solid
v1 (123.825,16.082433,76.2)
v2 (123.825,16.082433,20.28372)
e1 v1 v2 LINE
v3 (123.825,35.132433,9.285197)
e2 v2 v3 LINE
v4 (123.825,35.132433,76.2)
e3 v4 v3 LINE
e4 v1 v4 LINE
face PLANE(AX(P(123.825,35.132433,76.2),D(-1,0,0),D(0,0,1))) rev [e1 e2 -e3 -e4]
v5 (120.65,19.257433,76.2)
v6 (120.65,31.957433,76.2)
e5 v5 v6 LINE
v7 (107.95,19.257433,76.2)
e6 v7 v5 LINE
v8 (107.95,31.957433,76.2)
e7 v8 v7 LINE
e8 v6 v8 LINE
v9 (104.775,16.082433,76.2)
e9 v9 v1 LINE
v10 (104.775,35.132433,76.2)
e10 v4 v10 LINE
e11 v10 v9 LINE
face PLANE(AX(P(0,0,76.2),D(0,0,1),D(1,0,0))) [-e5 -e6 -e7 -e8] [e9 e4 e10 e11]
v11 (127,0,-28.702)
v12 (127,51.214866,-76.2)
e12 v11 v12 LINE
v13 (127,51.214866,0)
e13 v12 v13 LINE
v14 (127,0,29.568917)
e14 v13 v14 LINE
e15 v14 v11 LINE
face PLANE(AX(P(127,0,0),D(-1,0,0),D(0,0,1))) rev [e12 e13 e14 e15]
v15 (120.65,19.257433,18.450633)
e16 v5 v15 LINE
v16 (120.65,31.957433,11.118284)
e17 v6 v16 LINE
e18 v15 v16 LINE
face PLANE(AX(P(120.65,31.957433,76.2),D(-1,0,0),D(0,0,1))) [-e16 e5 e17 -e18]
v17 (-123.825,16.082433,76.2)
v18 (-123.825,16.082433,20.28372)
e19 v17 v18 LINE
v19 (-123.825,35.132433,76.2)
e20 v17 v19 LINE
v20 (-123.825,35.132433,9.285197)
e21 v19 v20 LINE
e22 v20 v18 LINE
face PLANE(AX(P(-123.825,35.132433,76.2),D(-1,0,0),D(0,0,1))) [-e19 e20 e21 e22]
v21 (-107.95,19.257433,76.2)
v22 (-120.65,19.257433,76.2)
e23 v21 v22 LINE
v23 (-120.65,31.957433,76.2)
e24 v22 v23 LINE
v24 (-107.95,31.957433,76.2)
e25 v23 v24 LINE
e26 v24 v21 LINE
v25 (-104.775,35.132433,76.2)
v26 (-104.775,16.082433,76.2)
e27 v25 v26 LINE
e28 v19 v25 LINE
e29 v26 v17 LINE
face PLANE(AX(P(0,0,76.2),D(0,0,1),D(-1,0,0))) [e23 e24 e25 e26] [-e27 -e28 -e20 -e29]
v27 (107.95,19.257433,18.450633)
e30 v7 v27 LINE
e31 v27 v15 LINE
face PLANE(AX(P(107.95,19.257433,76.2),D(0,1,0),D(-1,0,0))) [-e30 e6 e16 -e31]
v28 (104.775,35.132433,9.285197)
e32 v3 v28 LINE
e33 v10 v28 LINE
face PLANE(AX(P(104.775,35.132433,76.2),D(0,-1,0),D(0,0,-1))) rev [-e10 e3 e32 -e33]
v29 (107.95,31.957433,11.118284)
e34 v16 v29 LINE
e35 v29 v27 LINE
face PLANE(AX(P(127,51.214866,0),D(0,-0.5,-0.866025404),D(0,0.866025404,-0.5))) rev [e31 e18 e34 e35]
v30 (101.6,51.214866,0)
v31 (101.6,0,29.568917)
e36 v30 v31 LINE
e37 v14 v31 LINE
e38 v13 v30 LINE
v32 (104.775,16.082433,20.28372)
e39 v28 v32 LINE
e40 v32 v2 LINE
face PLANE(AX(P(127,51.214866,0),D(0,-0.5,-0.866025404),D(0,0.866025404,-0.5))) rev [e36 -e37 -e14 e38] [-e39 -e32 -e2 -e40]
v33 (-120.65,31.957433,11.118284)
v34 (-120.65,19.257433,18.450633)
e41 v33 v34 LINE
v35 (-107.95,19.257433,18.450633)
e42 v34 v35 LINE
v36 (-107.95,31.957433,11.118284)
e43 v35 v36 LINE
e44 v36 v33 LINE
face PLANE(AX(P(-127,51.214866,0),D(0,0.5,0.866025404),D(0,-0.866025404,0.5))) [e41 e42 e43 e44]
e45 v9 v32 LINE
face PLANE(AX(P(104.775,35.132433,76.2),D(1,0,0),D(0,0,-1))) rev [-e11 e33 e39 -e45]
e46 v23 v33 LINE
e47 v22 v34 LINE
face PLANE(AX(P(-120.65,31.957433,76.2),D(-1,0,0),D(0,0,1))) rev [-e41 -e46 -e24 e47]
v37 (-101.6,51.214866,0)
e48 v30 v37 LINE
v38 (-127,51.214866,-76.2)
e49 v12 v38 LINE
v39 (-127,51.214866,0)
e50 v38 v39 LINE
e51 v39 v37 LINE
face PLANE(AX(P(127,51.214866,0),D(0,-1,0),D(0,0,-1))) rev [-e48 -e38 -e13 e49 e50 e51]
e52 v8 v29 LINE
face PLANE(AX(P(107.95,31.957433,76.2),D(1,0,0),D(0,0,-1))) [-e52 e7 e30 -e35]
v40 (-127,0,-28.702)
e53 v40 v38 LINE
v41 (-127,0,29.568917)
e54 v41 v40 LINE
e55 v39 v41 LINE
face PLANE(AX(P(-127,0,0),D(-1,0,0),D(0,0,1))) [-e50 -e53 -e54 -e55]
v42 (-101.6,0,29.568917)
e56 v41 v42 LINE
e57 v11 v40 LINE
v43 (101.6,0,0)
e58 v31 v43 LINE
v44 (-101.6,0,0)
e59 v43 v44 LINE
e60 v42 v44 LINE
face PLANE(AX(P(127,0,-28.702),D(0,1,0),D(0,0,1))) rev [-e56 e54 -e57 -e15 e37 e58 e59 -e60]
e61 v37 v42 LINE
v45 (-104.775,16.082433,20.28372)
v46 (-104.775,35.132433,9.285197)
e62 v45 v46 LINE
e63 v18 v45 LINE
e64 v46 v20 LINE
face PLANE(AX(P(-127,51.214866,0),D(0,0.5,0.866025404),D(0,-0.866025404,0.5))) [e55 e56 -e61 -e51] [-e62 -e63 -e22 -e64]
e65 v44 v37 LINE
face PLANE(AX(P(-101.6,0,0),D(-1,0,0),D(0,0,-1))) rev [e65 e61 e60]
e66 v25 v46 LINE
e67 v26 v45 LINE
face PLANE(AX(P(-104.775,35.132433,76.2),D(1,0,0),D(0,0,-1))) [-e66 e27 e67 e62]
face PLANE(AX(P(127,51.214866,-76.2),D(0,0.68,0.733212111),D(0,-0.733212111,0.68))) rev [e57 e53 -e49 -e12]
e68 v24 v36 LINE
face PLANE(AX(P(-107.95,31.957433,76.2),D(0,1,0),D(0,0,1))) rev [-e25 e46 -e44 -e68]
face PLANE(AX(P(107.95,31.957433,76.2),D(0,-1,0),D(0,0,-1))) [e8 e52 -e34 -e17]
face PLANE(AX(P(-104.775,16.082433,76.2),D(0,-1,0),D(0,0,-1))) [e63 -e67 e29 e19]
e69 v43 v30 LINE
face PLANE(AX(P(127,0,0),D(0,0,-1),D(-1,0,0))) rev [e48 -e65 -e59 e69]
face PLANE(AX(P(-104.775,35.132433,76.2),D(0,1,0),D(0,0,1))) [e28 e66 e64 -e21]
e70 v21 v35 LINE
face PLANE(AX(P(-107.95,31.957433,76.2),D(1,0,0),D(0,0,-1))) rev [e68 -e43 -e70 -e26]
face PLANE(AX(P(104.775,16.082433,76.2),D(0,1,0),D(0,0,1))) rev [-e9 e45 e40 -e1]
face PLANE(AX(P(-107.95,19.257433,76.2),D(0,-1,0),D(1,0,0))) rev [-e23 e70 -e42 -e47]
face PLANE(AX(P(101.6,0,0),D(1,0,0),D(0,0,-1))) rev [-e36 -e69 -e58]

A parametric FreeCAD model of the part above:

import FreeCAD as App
import Part
import Sketcher
from FreeCAD import Vector
Q = App.Units.Quantity

doc = App.newDocument("Part")
body = doc.addObject("PartDesign::Body", "Body")

# Sketch on YZ plane
sketch1 = body.newObject("Sketcher::SketchObject", "Sketch")
sketch1.AttachmentSupport = (doc.getObject("YZ_Plane"), [""])
sketch1.MapMode = "FlatFace"
sketch1.addGeometry([
    Part.LineSegment(Vector(51.214866, 0, 0), Vector(0, 0, 0)),
    Part.LineSegment(Vector(0, 0, 0), Vector(0, -28.702, 0)),
    Part.LineSegment(Vector(0, -28.702, 0), Vector(51.214866, -76.2, 0)),
    Part.LineSegment(Vector(51.214866, -76.2, 0), Vector(51.214866, 0, 0)),
], False)
sketch1.addConstraint([
    Sketcher.Constraint("Coincident", 0, 2, 1, 1),
    Sketcher.Constraint("Coincident", 1, 2, 2, 1),
    Sketcher.Constraint("Coincident", 2, 2, 3, 1),
    Sketcher.Constraint("Coincident", 3, 2, 0, 1),
    Sketcher.Constraint("Horizontal", 0),
    Sketcher.Constraint("Vertical", 1),
    Sketcher.Constraint("Vertical", 3),
    Sketcher.Constraint("Coincident", 0, 2, -1, 1),
    Sketcher.Constraint("DistanceY", 3, 1, 3, 2, Q("3 in")),
    Sketcher.Constraint("DistanceY", 1, 2, 1, 1, Q("1.13 in")),
    Sketcher.Constraint("Distance", 2, Q("2.75 in")),
])
pad1 = body.newObject("PartDesign::Pad", "Pad")
pad1.Profile = sketch1
pad1.Length = Q("10 in")
pad1.Midplane = True

# Sketch on YZ plane
sketch2 = body.newObject("Sketcher::SketchObject", "Sketch001")
sketch2.AttachmentSupport = (doc.getObject("YZ_Plane"), [""])
sketch2.MapMode = "FlatFace"
sketch2.AttachmentOffset = App.Placement(Vector(0, 0, 4 * 25.4), App.Rotation())
sketch2.addGeometry([
    Part.LineSegment(Vector(51.214866, 0, 0), Vector(0, 29.568917, 0)),
    Part.LineSegment(Vector(0, 29.568917, 0), Vector(0, 0, 0)),
    Part.LineSegment(Vector(0, 0, 0), Vector(51.214866, 0, 0)),
], False)
sketch2.addConstraint([
    Sketcher.Constraint("Coincident", 0, 2, 1, 1),
    Sketcher.Constraint("Coincident", 1, 2, 2, 1),
    Sketcher.Constraint("Coincident", 2, 2, 0, 1),
    Sketcher.Constraint("Vertical", 1),
    Sketcher.Constraint("Horizontal", 2),
    Sketcher.Constraint("Coincident", 1, 2, -1, 1),
    Sketcher.Constraint("Angle", 0, Q("150 deg")),
    Sketcher.Constraint("DistanceX", 2, 1, 2, 2, Q("51.214866 mm")),
])
pad2 = body.newObject("PartDesign::Pad", "Pad001")
pad2.Profile = sketch2
pad2.Length = Q("1 in")
doc.recompute()

mirrored = body.newObject("PartDesign::Mirrored", "Mirrored")
mirrored.Originals = [pad2]
mirrored.MirrorPlane = (doc.getObject("YZ_Plane"), [""])
body.Tip = mirrored

# Sketch on XY plane
sketch3 = body.newObject("Sketcher::SketchObject", "Sketch002")
sketch3.AttachmentSupport = (doc.getObject("XY_Plane"), [""])
sketch3.MapMode = "FlatFace"
sketch3.addGeometry([
    Part.LineSegment(Vector(104.775, 35.132433, 0), Vector(104.775, 16.082433, 0)),  # 0
    Part.LineSegment(Vector(104.775, 16.082433, 0), Vector(123.825, 16.082433, 0)),  # 1
    Part.LineSegment(Vector(123.825, 16.082433, 0), Vector(123.825, 35.132433, 0)),  # 2
    Part.LineSegment(Vector(123.825, 35.132433, 0), Vector(104.775, 35.132433, 0)),  # 3
    Part.LineSegment(Vector(120.65, 19.257433, 0), Vector(107.95, 19.257433, 0)),  # 4
    Part.LineSegment(Vector(107.95, 19.257433, 0), Vector(107.95, 31.957433, 0)),  # 5
    Part.LineSegment(Vector(107.95, 31.957433, 0), Vector(120.65, 31.957433, 0)),  # 6
    Part.LineSegment(Vector(120.65, 31.957433, 0), Vector(120.65, 19.257433, 0)),  # 7
], False)
sketch3.addConstraint([
    Sketcher.Constraint("Coincident", 0, 2, 1, 1),
    Sketcher.Constraint("Coincident", 1, 2, 2, 1),
    Sketcher.Constraint("Coincident", 2, 2, 3, 1),
    Sketcher.Constraint("Coincident", 3, 2, 0, 1),
    Sketcher.Constraint("Coincident", 4, 2, 5, 1),
    Sketcher.Constraint("Coincident", 5, 2, 6, 1),
    Sketcher.Constraint("Coincident", 6, 2, 7, 1),
    Sketcher.Constraint("Coincident", 7, 2, 4, 1),
    Sketcher.Constraint("Vertical", 0),
    Sketcher.Constraint("Horizontal", 1),
    Sketcher.Constraint("Vertical", 2),
    Sketcher.Constraint("Horizontal", 3),
    Sketcher.Constraint("Horizontal", 4),
    Sketcher.Constraint("Vertical", 5),
    Sketcher.Constraint("Horizontal", 6),
    Sketcher.Constraint("Vertical", 7),
    Sketcher.Constraint("Equal", 3, 0),
    Sketcher.Constraint("Equal", 6, 5),
    Sketcher.Constraint("DistanceX", 4, 2, 4, 1, Q("0.5 in")),
    Sketcher.Constraint("DistanceX", 1, 1, 1, 2, Q("0.75 in")),
    Sketcher.Constraint("DistanceX", -1, 1, 4, 2, Q("4.25 in")),
    Sketcher.Constraint("DistanceX", -1, 1, 0, 2, Q("4.125 in")),
    Sketcher.Constraint("DistanceY", 0, 2, 4, 2, Q("0.125 in")),
    Sketcher.Constraint("DistanceY", -1, 1, 0, 2, Q("16.082433 mm")),
])
pad3 = body.newObject("PartDesign::Pad", "Pad002")
pad3.Profile = sketch3
pad3.Length = Q("3 in")
doc.recompute()

mirrored2 = body.newObject("PartDesign::Mirrored", "Mirrored001")
mirrored2.Originals = [pad3]
mirrored2.MirrorPlane = (doc.getObject("YZ_Plane"), [""])
body.Tip = mirrored2

doc.recompute()
